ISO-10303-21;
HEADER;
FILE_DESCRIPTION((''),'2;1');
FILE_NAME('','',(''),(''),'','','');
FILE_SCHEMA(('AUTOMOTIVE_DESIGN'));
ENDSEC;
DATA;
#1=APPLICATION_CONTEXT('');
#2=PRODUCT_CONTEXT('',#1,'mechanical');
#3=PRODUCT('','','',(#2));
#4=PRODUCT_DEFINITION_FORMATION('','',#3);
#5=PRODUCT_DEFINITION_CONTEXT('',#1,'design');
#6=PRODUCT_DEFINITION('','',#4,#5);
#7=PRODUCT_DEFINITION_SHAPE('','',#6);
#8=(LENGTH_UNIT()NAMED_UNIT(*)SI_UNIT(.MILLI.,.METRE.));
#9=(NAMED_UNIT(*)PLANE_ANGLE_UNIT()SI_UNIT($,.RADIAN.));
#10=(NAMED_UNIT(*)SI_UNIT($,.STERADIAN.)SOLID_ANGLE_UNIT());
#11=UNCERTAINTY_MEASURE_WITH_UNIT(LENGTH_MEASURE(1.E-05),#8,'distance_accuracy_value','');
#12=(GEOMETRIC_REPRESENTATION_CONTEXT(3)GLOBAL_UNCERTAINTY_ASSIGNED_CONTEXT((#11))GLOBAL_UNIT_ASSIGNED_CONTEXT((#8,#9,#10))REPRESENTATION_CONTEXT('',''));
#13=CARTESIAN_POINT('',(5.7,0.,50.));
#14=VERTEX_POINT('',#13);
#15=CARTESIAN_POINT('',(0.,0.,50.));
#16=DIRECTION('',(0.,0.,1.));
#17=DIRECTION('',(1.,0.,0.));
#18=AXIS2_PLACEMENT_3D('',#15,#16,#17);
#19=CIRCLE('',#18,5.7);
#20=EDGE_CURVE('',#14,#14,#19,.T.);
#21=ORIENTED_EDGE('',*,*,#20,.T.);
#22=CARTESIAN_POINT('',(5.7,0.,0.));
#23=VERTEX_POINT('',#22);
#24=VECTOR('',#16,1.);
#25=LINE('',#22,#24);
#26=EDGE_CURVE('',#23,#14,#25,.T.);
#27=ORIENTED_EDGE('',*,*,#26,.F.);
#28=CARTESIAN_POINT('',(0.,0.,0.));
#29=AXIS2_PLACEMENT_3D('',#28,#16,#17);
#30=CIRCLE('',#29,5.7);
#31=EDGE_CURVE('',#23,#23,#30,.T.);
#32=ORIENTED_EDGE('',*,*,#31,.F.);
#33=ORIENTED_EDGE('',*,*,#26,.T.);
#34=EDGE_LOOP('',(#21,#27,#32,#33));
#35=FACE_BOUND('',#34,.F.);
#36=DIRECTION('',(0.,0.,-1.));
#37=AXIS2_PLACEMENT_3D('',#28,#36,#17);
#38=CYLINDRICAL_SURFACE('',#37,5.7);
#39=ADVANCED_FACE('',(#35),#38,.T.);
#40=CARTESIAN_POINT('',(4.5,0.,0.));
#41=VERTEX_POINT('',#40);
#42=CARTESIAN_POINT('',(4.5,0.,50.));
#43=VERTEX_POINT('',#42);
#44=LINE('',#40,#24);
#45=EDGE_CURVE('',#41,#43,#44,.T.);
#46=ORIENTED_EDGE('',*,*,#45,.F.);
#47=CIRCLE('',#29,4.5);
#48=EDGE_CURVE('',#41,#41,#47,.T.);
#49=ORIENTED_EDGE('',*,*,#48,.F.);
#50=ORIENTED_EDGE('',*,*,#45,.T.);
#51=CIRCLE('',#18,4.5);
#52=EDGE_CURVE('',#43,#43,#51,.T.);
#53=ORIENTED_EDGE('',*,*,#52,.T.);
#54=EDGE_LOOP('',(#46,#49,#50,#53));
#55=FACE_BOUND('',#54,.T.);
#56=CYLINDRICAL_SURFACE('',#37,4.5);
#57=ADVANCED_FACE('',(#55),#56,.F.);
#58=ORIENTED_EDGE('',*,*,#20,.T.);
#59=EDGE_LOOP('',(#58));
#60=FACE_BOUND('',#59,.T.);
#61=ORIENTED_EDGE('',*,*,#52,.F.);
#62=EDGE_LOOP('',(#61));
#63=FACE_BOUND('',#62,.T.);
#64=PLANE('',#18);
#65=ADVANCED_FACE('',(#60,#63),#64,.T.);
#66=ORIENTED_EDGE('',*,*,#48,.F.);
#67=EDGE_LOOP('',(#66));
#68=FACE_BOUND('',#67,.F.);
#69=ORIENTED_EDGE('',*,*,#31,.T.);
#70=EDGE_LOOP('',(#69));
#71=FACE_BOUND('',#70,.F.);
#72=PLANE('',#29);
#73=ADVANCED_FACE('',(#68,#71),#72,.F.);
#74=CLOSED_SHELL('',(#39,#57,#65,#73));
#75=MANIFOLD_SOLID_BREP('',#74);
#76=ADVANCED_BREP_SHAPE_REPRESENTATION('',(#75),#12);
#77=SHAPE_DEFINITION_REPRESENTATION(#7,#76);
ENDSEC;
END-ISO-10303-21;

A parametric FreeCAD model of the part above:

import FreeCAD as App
import Part
import Sketcher
Q = App.Units.Quantity


def faces_at(feature, points):
    """Names of the faces that lie closest to the given points."""
    faces = feature.Shape.Faces
    near = lambda p: min(range(len(faces)), key=lambda i: faces[i].distToShape(Part.Vertex(*p))[0])
    return sorted({f"Face{near(p) + 1}" for p in points})

doc = App.newDocument("Part")
params = doc.addObject("Spreadsheet::Sheet", "Params")
for row, (alias, value) in enumerate([
    ("sketch1_diameter", "9 mm"),
    ("pad1_length", "50 mm"),
    ("thickness_wall", "1.2 mm"),
], start=1):
    params.set(f"A{row}", alias)
    params.set(f"B{row}", "=" + value)
    params.setAlias(f"B{row}", alias)

body = doc.addObject("PartDesign::Body", "Body")

sketch1 = body.newObject("Sketcher::SketchObject", "Sketch")
sketch1.AttachmentSupport = (doc.getObject("XY_Plane"), [""])
sketch1.MapMode = "FlatFace"
sketch1.addGeometry(Part.Circle(App.Vector(0, 0, 0), App.Vector(0, 0, 1), 4.5), False)
sketch1.addConstraint([
    Sketcher.Constraint("Coincident", 0, 3, -1, 1),
    Sketcher.Constraint("Diameter", 0, Q("9 mm")),
])
sketch1.setExpression("Constraints[1]", "Params.sketch1_diameter")
pad1 = body.newObject("PartDesign::Pad", "Pad")
pad1.Profile = sketch1
pad1.setExpression("Length", "Params.pad1_length")
doc.recompute()

thickness = body.newObject("PartDesign::Thickness", "Thickness")
thickness.Base = (pad1, faces_at(pad1, [(0, 0, 0), (0, 0, 50)]))
thickness.setExpression("Value", "Params.thickness_wall")
thickness.Reversed = False
thickness.Join = "Arc"

doc.recompute()
